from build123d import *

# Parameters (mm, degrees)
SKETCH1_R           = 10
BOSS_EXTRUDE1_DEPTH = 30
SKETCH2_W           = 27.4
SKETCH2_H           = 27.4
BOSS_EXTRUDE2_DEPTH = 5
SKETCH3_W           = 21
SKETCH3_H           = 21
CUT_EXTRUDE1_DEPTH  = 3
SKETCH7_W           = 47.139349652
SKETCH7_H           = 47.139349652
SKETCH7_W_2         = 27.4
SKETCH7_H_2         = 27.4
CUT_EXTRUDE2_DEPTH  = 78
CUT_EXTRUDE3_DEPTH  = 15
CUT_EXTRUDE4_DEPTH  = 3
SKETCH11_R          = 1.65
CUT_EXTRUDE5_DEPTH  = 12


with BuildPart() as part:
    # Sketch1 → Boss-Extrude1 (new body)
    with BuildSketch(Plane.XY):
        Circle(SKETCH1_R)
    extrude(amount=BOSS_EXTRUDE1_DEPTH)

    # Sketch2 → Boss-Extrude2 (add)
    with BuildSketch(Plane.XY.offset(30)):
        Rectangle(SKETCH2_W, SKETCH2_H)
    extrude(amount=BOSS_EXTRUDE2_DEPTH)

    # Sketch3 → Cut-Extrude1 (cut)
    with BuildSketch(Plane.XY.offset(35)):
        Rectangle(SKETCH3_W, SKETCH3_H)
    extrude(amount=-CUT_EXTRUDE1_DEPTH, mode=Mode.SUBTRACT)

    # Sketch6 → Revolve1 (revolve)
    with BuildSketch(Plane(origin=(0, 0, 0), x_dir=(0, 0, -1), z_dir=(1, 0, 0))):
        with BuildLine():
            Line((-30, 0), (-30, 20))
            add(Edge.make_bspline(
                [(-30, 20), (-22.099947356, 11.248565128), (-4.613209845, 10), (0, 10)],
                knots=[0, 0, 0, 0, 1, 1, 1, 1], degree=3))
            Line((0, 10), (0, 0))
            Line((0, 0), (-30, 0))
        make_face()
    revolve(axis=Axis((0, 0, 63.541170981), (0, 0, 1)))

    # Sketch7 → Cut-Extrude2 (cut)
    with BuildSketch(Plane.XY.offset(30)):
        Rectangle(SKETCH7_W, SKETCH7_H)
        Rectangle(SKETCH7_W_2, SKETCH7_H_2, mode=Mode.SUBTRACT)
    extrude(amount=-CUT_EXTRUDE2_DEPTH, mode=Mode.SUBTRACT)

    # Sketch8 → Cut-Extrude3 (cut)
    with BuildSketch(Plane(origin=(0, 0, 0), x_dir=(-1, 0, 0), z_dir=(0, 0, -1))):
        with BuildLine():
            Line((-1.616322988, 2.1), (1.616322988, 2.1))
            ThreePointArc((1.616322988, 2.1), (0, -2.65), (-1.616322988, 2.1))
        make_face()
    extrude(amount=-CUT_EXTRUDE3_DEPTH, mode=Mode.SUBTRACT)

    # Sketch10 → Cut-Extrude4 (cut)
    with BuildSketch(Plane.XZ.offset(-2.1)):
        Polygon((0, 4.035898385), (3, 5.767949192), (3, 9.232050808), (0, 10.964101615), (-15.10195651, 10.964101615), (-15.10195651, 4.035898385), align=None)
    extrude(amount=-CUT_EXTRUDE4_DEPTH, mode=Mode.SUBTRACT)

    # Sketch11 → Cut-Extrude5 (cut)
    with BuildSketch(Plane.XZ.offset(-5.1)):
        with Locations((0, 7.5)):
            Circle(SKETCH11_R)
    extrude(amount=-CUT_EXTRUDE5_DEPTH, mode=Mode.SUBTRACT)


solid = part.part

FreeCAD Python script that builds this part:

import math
import FreeCAD as App
import Part
import Sketcher

V = App.Vector
Q = App.Units.Quantity

doc = App.newDocument("Part")
body = doc.addObject("PartDesign::Body", "Body")

# Sketch on XY plane
sketch1 = body.newObject("Sketcher::SketchObject", "Sketch")
sketch1.AttachmentSupport = (doc.getObject("XY_Plane"), [""])
sketch1.MapMode = "FlatFace"
sketch1.addGeometry(Part.Circle(V(0, 0, 0), V(0, 0, 1), 10), False)
sketch1.addConstraint([
    Sketcher.Constraint("Coincident", 0, 3, -1, 1),
    Sketcher.Constraint("Diameter", 0, 20.0),
])
pad1 = body.newObject("PartDesign::Pad", "Pad")
pad1.Profile = sketch1
pad1.Length = 30

# Sketch on XY plane
sketch2 = body.newObject("Sketcher::SketchObject", "Sketch001")
sketch2.AttachmentSupport = (doc.getObject("XY_Plane"), [""])
sketch2.MapMode = "FlatFace"
sketch2.AttachmentOffset = App.Placement(V(0, 0, 30), App.Rotation())
sketch2.addGeometry([
    Part.LineSegment(V(-14, 14, 0), V(-14, -14, 0)),
    Part.LineSegment(V(-14, -14, 0), V(14, -14, 0)),
    Part.LineSegment(V(14, -14, 0), V(14, 14, 0)),
    Part.LineSegment(V(14, 14, 0), V(-14, 14, 0)),
], False)
sketch2.addConstraint([
    Sketcher.Constraint("Coincident", 0, 2, 1, 1),
    Sketcher.Constraint("Coincident", 1, 2, 2, 1),
    Sketcher.Constraint("Coincident", 2, 2, 3, 1),
    Sketcher.Constraint("Coincident", 3, 2, 0, 1),
    Sketcher.Constraint("Vertical", 0),
    Sketcher.Constraint("Horizontal", 1),
    Sketcher.Constraint("Vertical", 2),
    Sketcher.Constraint("Horizontal", 3),
    Sketcher.Constraint("Symmetric", 0, 2, 2, 2, -1, 1),
    Sketcher.Constraint("Equal", 3, 0),
    Sketcher.Constraint("DistanceX", 1, 1, 1, 2, 27.4),
])
pad2 = body.newObject("PartDesign::Pad", "Pad001")
pad2.Profile = sketch2
pad2.Length = 5

# Sketch on XY plane
sketch3 = body.newObject("Sketcher::SketchObject", "Sketch002")
sketch3.AttachmentSupport = (doc.getObject("XY_Plane"), [""])
sketch3.MapMode = "FlatFace"
sketch3.AttachmentOffset = App.Placement(V(0, 0, 35), App.Rotation())
sketch3.addGeometry([
    Part.LineSegment(V(-10, 10, 0), V(-10, -10, 0)),
    Part.LineSegment(V(-10, -10, 0), V(10, -10, 0)),
    Part.LineSegment(V(10, -10, 0), V(10, 10, 0)),
    Part.LineSegment(V(10, 10, 0), V(-10, 10, 0)),
], False)
sketch3.addConstraint([
    Sketcher.Constraint("Coincident", 0, 2, 1, 1),
    Sketcher.Constraint("Coincident", 1, 2, 2, 1),
    Sketcher.Constraint("Coincident", 2, 2, 3, 1),
    Sketcher.Constraint("Coincident", 3, 2, 0, 1),
    Sketcher.Constraint("Vertical", 0),
    Sketcher.Constraint("Horizontal", 1),
    Sketcher.Constraint("Vertical", 2),
    Sketcher.Constraint("Horizontal", 3),
    Sketcher.Constraint("Symmetric", 0, 2, 2, 2, -1, 1),
    Sketcher.Constraint("Equal", 3, 0),
    Sketcher.Constraint("DistanceX", 1, 1, 1, 2, 21.0),
])
pocket1 = body.newObject("PartDesign::Pocket", "Pocket")
pocket1.Profile = sketch3
pocket1.Length = 3

# Sketch on YZ plane
sketch4 = body.newObject("Sketcher::SketchObject", "Sketch003")
sketch4.AttachmentSupport = (doc.getObject("YZ_Plane"), [""])
sketch4.MapMode = "FlatFace"
sketch4.addGeometry([
    Part.LineSegment(V(20, 30, 0), V(0, 30, 0)),
    Part.LineSegment(V(0, 30, 0), V(0, 0, 0)),
    Part.LineSegment(V(0, 0, 0), V(10, 0, 0)),
    Part.BSplineCurve([V(20, 30, 0), V(11.248565, 22.099947, 0), V(10, 4.61321, 0), V(10, 0, 0)], [4, 4], [0, 1], False, 3, [1, 1, 1, 1], False),
], False)
sketch4.addConstraint([
    Sketcher.Constraint("Block", 3),
    Sketcher.Constraint("Coincident", 0, 2, 1, 1),
    Sketcher.Constraint("Coincident", 1, 2, 2, 1),
    Sketcher.Constraint("Coincident", 2, 2, 3, 2),
    Sketcher.Constraint("Coincident", 3, 1, 0, 1),
    Sketcher.Constraint("Horizontal", 0),
    Sketcher.Constraint("Vertical", 1),
    Sketcher.Constraint("Horizontal", 2),
    Sketcher.Constraint("PointOnObject", 0, 2, -2),
])
revolution = body.newObject("PartDesign::Revolution", "Revolution")
revolution.Profile = sketch4
revolution.ReferenceAxis = (sketch4, ["V_Axis"])
revolution.Angle = 360

# Sketch on XY plane
sketch5 = body.newObject("Sketcher::SketchObject", "Sketch004")
sketch5.AttachmentSupport = (doc.getObject("XY_Plane"), [""])
sketch5.MapMode = "FlatFace"
sketch5.AttachmentOffset = App.Placement(V(0, 0, 30), App.Rotation())
sketch5.addGeometry([
    Part.LineSegment(V(-24, 24, 0), V(-24, -24, 0)),  # 0
    Part.LineSegment(V(-24, -24, 0), V(24, -24, 0)),  # 1
    Part.LineSegment(V(24, -24, 0), V(24, 24, 0)),  # 2
    Part.LineSegment(V(24, 24, 0), V(-24, 24, 0)),  # 3
    Part.LineSegment(V(14, -14, 0), V(-14, -14, 0)),  # 4
    Part.LineSegment(V(-14, -14, 0), V(-14, 14, 0)),  # 5
    Part.LineSegment(V(-14, 14, 0), V(14, 14, 0)),  # 6
    Part.LineSegment(V(14, 14, 0), V(14, -14, 0)),  # 7
], False)
sketch5.addConstraint([
    Sketcher.Constraint("Coincident", 0, 2, 1, 1),
    Sketcher.Constraint("Coincident", 1, 2, 2, 1),
    Sketcher.Constraint("Coincident", 2, 2, 3, 1),
    Sketcher.Constraint("Coincident", 3, 2, 0, 1),
    Sketcher.Constraint("Coincident", 4, 2, 5, 1),
    Sketcher.Constraint("Coincident", 5, 2, 6, 1),
    Sketcher.Constraint("Coincident", 6, 2, 7, 1),
    Sketcher.Constraint("Coincident", 7, 2, 4, 1),
    Sketcher.Constraint("Vertical", 0),
    Sketcher.Constraint("Horizontal", 1),
    Sketcher.Constraint("Vertical", 2),
    Sketcher.Constraint("Horizontal", 3),
    Sketcher.Constraint("Horizontal", 4),
    Sketcher.Constraint("Vertical", 5),
    Sketcher.Constraint("Horizontal", 6),
    Sketcher.Constraint("Vertical", 7),
    Sketcher.Constraint("Symmetric", 0, 2, 2, 2, -1, 1),
    Sketcher.Constraint("Symmetric", 4, 2, 6, 2, -1, 1),
    Sketcher.Constraint("Equal", 3, 0),
    Sketcher.Constraint("Equal", 6, 5),
    Sketcher.Constraint("DistanceX", 4, 2, 4, 1, 27.4),
    Sketcher.Constraint("DistanceX", 1, 1, 1, 2, 47.13935),
])
pocket2 = body.newObject("PartDesign::Pocket", "Pocket001")
pocket2.Profile = sketch5
pocket2.Length = 78

# Sketch on XY plane
sketch6 = body.newObject("Sketcher::SketchObject", "Sketch005")
sketch6.AttachmentSupport = (doc.getObject("XY_Plane"), [""])
sketch6.MapMode = "FlatFace"
sketch6.addGeometry([
    Part.LineSegment(V(-1.6, 2.1, 0), V(1.6, 2.1, 0)),
    Part.ArcOfCircle(Part.Circle(V(0, 0, 0), V(0, 0, 1), 2.6), math.radians(128), math.radians(412)),
], False)
sketch6.addConstraint([
    Sketcher.Constraint("Coincident", 0, 1, 1, 1),
    Sketcher.Constraint("Coincident", 1, 2, 0, 2),
    Sketcher.Constraint("Horizontal", 0),
    Sketcher.Constraint("Coincident", 1, 3, -1, 1),
    Sketcher.Constraint("Radius", 1, 2.65),
    Sketcher.Constraint("DistanceY", -1, 1, 0, 1, 2.1),
])
pocket3 = body.newObject("PartDesign::Pocket", "Pocket002")
pocket3.Profile = sketch6
pocket3.Length = 15
pocket3.Reversed = True

# Sketch on XZ plane
sketch7 = body.newObject("Sketcher::SketchObject", "Sketch006")
sketch7.AttachmentSupport = (doc.getObject("XZ_Plane"), [""])
sketch7.MapMode = "FlatFace"
sketch7.AttachmentOffset = App.Placement(V(0, 0, -2.1), App.Rotation())
sketch7.addGeometry([
    Part.LineSegment(V(0, 4, 0), V(3, 5.8, 0)),  # 0
    Part.LineSegment(V(3, 5.8, 0), V(3, 9.2, 0)),  # 1
    Part.LineSegment(V(3, 9.2, 0), V(0, 11, 0)),  # 2
    Part.LineSegment(V(0, 11, 0), V(-15.1, 11, 0)),  # 3
    Part.LineSegment(V(-15.1, 11, 0), V(-15.1, 4, 0)),  # 4
    Part.LineSegment(V(-15.1, 4, 0), V(0, 4, 0)),  # 5
], False)
sketch7.addConstraint([
    Sketcher.Constraint("Coincident", 0, 2, 1, 1),
    Sketcher.Constraint("Coincident", 1, 2, 2, 1),
    Sketcher.Constraint("Coincident", 2, 2, 3, 1),
    Sketcher.Constraint("Coincident", 3, 2, 4, 1),
    Sketcher.Constraint("Coincident", 4, 2, 5, 1),
    Sketcher.Constraint("Coincident", 5, 2, 0, 1),
    Sketcher.Constraint("Vertical", 1),
    Sketcher.Constraint("Horizontal", 3),
    Sketcher.Constraint("Vertical", 4),
    Sketcher.Constraint("Horizontal", 5),
    Sketcher.Constraint("PointOnObject", 2, 2, -2),
    Sketcher.Constraint("PointOnObject", 5, 2, -2),
    Sketcher.Constraint("Equal", 0, 2),
    Sketcher.Constraint("Angle", 0, Q("30 deg")),
    Sketcher.Constraint("DistanceX", -1, 1, 0, 2, 3.0),
    Sketcher.Constraint("DistanceY", 1, 1, 1, 2, 3.464102),
    Sketcher.Constraint("DistanceY", -1, 1, 2, 2, 10.964102),
    Sketcher.Constraint("DistanceX", 3, 2, 3, 1, 15.101957),
])
pocket4 = body.newObject("PartDesign::Pocket", "Pocket003")
pocket4.Profile = sketch7
pocket4.Length = 3

# Sketch on XZ plane
sketch8 = body.newObject("Sketcher::SketchObject", "Sketch007")
sketch8.AttachmentSupport = (doc.getObject("XZ_Plane"), [""])
sketch8.MapMode = "FlatFace"
sketch8.AttachmentOffset = App.Placement(V(0, 0, -5.1), App.Rotation())
sketch8.addGeometry(Part.Circle(V(0, 7.5, 0), V(0, 0, 1), 1.6), False)
sketch8.addConstraint([
    Sketcher.Constraint("PointOnObject", 0, 3, -2),
    Sketcher.Constraint("Diameter", 0, 3.3),
    Sketcher.Constraint("DistanceY", -1, 1, 0, 3, 7.5),
])
pocket5 = body.newObject("PartDesign::Pocket", "Pocket004")
pocket5.Profile = sketch8
pocket5.Length = 12

doc.recompute()
